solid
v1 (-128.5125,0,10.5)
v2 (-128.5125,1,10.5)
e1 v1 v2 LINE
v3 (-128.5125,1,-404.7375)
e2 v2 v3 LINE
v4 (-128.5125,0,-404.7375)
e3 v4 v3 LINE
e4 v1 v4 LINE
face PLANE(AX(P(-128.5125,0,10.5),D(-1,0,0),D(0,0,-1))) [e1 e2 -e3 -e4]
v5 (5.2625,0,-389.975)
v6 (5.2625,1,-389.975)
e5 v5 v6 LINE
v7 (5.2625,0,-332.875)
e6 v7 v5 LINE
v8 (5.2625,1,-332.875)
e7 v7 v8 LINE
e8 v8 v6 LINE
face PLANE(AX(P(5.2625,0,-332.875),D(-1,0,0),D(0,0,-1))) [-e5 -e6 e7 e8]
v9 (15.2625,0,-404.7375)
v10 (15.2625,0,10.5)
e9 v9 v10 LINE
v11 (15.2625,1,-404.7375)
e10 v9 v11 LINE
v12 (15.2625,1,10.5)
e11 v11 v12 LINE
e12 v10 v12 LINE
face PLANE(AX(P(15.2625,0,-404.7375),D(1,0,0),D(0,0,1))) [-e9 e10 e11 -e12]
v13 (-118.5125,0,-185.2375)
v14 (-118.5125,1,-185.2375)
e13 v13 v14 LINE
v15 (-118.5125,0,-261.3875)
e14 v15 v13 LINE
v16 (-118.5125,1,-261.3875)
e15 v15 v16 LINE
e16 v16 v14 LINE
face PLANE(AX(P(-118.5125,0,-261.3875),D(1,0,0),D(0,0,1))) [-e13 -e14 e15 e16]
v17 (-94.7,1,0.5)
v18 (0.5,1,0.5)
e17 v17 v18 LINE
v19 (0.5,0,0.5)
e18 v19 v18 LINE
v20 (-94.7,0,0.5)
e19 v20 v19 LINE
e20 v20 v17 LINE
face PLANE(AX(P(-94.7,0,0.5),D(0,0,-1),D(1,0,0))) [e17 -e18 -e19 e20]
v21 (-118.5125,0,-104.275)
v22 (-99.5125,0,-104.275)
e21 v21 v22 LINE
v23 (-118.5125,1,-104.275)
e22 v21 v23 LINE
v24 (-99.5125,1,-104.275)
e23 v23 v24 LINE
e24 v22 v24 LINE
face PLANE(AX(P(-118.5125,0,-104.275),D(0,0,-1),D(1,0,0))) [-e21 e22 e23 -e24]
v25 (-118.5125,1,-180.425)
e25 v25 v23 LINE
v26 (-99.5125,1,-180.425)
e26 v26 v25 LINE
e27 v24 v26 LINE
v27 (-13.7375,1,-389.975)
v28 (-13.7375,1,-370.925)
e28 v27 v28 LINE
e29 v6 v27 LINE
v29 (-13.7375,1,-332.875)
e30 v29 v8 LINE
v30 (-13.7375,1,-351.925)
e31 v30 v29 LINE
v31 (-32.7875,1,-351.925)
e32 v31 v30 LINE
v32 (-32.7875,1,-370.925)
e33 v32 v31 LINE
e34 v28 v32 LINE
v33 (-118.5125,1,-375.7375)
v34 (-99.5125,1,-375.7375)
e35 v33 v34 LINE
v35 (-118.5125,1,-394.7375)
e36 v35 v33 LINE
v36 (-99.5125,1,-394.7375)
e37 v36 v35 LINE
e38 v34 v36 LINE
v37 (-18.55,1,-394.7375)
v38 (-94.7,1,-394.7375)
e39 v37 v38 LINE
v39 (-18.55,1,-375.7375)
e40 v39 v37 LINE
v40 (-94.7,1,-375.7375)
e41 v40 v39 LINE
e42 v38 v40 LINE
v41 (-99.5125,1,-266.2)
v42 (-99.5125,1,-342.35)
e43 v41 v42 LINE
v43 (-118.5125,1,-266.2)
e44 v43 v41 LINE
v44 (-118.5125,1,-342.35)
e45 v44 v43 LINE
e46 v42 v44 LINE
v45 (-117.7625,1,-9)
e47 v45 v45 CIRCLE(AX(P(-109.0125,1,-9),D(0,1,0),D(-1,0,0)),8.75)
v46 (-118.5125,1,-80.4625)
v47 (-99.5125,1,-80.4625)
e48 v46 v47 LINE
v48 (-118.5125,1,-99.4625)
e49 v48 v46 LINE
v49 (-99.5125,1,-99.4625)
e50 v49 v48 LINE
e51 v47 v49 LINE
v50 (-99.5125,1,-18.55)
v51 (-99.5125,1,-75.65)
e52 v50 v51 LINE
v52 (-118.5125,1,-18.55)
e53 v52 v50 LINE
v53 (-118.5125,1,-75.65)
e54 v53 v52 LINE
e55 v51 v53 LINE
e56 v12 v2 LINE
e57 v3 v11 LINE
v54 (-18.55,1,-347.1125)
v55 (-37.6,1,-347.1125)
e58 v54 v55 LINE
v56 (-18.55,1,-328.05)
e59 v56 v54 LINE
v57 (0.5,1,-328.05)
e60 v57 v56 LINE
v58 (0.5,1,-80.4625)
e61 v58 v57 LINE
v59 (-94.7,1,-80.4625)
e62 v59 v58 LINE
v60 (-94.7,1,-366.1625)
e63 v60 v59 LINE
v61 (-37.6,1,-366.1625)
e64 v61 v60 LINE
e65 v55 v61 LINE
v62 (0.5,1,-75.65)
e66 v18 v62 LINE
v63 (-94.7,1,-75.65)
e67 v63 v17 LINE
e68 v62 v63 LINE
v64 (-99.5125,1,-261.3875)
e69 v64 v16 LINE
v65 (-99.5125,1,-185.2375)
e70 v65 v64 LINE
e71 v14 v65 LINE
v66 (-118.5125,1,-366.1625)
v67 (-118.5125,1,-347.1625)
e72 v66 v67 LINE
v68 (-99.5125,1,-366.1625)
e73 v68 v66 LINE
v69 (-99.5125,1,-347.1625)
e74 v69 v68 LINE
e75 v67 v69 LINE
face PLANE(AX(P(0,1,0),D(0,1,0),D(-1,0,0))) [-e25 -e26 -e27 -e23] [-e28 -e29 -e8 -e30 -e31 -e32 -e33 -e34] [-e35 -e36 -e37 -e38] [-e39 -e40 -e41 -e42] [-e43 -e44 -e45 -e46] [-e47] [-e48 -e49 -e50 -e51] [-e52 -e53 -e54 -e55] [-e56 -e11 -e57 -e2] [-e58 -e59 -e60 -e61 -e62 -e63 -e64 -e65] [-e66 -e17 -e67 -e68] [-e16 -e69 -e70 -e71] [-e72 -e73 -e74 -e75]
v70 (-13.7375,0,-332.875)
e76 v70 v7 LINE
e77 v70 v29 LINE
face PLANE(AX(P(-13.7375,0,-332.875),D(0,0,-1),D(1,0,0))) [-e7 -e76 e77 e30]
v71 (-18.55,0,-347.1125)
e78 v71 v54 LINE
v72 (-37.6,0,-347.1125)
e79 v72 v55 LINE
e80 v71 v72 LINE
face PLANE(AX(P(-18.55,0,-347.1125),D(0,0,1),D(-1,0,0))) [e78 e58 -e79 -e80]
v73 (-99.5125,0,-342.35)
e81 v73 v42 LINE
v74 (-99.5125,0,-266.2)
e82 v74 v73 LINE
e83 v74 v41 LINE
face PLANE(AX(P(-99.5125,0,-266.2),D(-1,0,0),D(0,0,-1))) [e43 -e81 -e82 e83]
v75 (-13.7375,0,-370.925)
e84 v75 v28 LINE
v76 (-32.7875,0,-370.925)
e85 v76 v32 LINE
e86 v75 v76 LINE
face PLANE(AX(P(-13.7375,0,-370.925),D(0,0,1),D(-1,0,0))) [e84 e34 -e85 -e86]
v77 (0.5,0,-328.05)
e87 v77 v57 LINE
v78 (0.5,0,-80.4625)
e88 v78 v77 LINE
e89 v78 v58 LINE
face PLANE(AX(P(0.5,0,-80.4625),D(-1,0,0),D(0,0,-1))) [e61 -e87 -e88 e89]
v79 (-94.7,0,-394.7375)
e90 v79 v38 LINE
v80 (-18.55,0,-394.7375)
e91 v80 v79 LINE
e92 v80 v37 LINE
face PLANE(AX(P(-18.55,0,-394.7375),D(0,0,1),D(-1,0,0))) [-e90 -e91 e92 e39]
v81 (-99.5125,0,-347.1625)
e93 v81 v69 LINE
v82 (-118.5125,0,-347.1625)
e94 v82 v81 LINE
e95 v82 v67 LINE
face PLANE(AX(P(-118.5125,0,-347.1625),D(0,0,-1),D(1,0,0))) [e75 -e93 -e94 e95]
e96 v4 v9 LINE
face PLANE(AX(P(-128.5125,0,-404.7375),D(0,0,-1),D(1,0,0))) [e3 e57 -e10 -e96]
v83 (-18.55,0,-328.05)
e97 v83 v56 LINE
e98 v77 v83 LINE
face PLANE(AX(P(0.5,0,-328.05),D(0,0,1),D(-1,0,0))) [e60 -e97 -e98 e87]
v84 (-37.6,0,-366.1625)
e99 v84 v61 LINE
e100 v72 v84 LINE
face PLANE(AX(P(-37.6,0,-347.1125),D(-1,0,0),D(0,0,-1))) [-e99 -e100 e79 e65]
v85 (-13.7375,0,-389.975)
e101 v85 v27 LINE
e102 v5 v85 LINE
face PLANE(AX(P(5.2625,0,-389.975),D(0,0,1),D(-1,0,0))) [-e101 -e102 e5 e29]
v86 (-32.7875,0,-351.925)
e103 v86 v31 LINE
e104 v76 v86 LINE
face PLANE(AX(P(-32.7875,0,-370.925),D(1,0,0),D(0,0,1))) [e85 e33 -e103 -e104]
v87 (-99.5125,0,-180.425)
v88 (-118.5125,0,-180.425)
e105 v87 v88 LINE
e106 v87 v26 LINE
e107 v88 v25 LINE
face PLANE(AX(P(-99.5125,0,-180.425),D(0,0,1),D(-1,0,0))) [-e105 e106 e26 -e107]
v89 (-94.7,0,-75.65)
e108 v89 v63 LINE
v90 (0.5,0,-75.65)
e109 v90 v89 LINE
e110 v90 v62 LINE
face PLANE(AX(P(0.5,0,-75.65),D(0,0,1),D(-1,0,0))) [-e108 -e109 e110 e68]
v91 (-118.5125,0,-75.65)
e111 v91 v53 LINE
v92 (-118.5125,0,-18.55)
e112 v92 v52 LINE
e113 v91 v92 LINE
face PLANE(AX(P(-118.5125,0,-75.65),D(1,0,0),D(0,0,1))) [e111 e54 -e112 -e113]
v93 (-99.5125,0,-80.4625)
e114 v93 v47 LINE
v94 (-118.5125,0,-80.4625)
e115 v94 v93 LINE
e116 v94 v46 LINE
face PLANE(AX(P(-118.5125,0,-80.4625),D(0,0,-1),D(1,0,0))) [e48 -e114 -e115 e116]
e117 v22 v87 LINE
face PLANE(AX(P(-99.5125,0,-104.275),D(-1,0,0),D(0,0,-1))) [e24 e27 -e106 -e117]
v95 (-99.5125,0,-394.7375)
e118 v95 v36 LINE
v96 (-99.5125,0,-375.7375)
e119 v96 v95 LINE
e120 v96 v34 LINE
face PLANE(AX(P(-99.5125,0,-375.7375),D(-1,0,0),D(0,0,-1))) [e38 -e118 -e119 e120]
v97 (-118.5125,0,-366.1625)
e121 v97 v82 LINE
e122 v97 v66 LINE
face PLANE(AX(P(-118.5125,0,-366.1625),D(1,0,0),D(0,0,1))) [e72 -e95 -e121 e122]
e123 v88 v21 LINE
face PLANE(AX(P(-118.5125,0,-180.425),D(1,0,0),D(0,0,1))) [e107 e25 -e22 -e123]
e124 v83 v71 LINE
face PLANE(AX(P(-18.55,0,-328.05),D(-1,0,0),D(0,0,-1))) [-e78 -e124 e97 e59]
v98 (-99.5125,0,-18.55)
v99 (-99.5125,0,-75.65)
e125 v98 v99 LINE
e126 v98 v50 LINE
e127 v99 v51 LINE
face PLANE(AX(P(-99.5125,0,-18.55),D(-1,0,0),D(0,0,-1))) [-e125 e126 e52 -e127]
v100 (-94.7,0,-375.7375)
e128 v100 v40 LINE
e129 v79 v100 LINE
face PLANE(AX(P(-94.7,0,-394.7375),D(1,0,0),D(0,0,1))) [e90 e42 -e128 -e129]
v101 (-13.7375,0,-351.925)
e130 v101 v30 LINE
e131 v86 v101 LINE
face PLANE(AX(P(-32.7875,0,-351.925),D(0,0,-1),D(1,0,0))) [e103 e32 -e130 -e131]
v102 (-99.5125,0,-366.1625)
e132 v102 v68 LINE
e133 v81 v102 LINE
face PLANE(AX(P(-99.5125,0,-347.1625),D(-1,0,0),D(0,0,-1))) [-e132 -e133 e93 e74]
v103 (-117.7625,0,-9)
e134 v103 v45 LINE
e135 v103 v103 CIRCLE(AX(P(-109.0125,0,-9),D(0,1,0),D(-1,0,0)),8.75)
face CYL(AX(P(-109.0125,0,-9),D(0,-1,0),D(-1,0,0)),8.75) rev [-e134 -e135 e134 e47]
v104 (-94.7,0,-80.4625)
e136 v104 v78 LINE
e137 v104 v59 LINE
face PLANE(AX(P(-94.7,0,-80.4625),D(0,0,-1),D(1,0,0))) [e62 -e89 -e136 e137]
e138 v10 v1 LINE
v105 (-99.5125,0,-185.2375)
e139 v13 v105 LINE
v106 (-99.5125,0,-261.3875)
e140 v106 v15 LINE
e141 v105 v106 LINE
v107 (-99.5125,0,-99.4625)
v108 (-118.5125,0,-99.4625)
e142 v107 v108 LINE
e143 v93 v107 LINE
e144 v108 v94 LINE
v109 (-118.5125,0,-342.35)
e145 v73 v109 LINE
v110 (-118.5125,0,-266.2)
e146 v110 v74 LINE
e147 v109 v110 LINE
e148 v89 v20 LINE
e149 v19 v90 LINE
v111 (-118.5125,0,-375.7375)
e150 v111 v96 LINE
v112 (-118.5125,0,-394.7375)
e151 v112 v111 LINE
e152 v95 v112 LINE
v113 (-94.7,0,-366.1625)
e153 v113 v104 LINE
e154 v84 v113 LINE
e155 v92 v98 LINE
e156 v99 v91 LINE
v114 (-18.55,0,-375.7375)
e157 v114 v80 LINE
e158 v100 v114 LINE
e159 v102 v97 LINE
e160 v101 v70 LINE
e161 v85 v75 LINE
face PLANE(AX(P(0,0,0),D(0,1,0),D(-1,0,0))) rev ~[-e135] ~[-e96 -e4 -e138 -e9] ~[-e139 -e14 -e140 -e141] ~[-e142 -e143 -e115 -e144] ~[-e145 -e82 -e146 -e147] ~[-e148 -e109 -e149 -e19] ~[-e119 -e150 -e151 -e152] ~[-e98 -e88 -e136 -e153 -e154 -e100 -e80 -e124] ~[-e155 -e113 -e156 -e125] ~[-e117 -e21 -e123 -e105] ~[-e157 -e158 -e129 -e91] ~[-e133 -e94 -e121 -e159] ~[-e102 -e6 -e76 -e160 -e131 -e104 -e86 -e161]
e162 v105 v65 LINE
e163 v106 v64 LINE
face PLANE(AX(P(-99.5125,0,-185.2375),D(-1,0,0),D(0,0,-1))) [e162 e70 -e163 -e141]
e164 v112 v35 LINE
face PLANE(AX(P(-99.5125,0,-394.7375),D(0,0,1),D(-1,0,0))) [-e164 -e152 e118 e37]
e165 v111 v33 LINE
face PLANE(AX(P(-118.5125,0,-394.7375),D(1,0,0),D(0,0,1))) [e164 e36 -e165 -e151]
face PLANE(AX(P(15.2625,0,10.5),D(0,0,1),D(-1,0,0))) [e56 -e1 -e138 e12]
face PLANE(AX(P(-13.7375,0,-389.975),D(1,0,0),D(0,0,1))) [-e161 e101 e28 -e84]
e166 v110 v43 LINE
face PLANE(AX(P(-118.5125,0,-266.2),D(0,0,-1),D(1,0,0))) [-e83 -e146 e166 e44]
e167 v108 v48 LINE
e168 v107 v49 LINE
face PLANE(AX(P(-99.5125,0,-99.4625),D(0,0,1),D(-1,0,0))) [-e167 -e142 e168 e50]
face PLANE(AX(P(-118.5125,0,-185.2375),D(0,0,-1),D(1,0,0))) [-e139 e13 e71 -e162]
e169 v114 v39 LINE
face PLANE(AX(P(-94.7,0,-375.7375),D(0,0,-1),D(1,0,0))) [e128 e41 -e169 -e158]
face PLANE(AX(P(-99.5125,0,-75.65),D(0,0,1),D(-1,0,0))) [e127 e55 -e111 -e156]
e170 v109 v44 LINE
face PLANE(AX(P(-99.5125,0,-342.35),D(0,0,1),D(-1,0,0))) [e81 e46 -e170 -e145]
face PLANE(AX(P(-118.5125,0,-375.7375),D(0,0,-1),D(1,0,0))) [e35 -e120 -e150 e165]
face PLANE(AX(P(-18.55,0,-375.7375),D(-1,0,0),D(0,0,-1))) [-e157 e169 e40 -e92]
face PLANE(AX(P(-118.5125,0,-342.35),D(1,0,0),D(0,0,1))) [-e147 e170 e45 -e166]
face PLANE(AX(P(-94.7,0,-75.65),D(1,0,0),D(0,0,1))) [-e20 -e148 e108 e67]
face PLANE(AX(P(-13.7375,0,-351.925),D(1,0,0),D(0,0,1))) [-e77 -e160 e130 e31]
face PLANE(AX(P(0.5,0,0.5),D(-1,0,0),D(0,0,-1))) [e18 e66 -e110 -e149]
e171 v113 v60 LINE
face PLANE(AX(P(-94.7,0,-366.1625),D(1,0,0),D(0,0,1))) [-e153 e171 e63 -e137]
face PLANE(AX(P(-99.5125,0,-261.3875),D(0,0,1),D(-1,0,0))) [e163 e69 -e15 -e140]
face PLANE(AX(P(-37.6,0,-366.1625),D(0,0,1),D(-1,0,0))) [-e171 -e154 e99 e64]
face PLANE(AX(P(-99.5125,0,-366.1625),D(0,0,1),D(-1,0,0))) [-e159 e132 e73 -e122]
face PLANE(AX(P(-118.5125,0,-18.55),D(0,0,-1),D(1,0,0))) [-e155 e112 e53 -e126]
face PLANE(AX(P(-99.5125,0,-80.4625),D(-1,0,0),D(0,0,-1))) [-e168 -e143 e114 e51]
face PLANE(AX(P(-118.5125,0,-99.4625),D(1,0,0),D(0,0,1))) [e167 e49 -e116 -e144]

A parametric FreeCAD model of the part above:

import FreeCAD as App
import Part
import Sketcher

V = App.Vector
Q = App.Units.Quantity


def add_polygon(sketch, points):
    """Adds a closed chain of lines whose ends are joined by coincident constraints."""
    first, n = sketch.GeometryCount, len(points)
    for a, b in zip(points, points[1:] + points[:1]):
        sketch.addGeometry(Part.LineSegment(App.Vector(*a, 0), App.Vector(*b, 0)), False)
    for i in range(n):
        sketch.addConstraint(Sketcher.Constraint("Coincident", first + i, 2, first + (i + 1) % n, 1))

doc = App.newDocument("Part")
body = doc.addObject("PartDesign::Body", "Body")

sketch1 = body.newObject("Sketcher::SketchObject", "Sketch")
sketch1.AttachmentSupport = (doc.getObject("XZ_Plane"), [""])
sketch1.MapMode = "FlatFace"
add_polygon(sketch1, [(-129, 10), (15, 10), (15, -405), (-129, -405)])
add_polygon(sketch1, [(5, -390), (5, -333), (-14, -333), (-14, -352), (-33, -352), (-33, -371), (-14, -371), (-14, -390)])
add_polygon(sketch1, [(0, -80), (-95, -80), (-95, -366), (-38, -366), (-38, -347), (-19, -347), (-19, -328), (0, -328)])
add_polygon(sketch1, [(-19, -376), (-95, -376), (-95, -395), (-19, -395)])
add_polygon(sketch1, [(-100, -376), (-119, -376), (-119, -395), (-100, -395)])
add_polygon(sketch1, [(-100, -347), (-119, -347), (-119, -366), (-100, -366)])
add_polygon(sketch1, [(-100, -266), (-119, -266), (-119, -342), (-100, -342)])
add_polygon(sketch1, [(-100, -185), (-119, -185), (-119, -261), (-100, -261)])
add_polygon(sketch1, [(0, 0), (-95, 0), (-95, -76), (0, -76)])
add_polygon(sketch1, [(-100, -104), (-119, -104), (-119, -180), (-100, -180)])
add_polygon(sketch1, [(-100, -80), (-119, -80), (-119, -99), (-100, -99)])
add_polygon(sketch1, [(-100, -19), (-119, -19), (-119, -76), (-100, -76)])
sketch1.addGeometry(Part.Circle(V(-109, -9, 0), V(0, 0, 1), 9), False)
sketch1.addConstraint(Sketcher.Constraint("Horizontal", 0))
sketch1.addConstraint(Sketcher.Constraint("Vertical", 1))
sketch1.addConstraint(Sketcher.Constraint("Horizontal", 2))
sketch1.addConstraint(Sketcher.Constraint("Vertical", 3))
sketch1.addConstraint(Sketcher.Constraint("Vertical", 4))
sketch1.addConstraint(Sketcher.Constraint("Horizontal", 5))
sketch1.addConstraint(Sketcher.Constraint("Vertical", 6))
sketch1.addConstraint(Sketcher.Constraint("Horizontal", 7))
sketch1.addConstraint(Sketcher.Constraint("Vertical", 8))
sketch1.addConstraint(Sketcher.Constraint("Horizontal", 9))
sketch1.addConstraint(Sketcher.Constraint("Vertical", 10))
sketch1.addConstraint(Sketcher.Constraint("Horizontal", 11))
sketch1.addConstraint(Sketcher.Constraint("Horizontal", 12))
sketch1.addConstraint(Sketcher.Constraint("Vertical", 13))
sketch1.addConstraint(Sketcher.Constraint("Horizontal", 14))
sketch1.addConstraint(Sketcher.Constraint("Vertical", 15))
sketch1.addConstraint(Sketcher.Constraint("Horizontal", 16))
sketch1.addConstraint(Sketcher.Constraint("Vertical", 17))
sketch1.addConstraint(Sketcher.Constraint("Horizontal", 18))
sketch1.addConstraint(Sketcher.Constraint("Vertical", 19))
sketch1.addConstraint(Sketcher.Constraint("Horizontal", 20))
sketch1.addConstraint(Sketcher.Constraint("Vertical", 21))
sketch1.addConstraint(Sketcher.Constraint("Horizontal", 22))
sketch1.addConstraint(Sketcher.Constraint("Vertical", 23))
sketch1.addConstraint(Sketcher.Constraint("Horizontal", 24))
sketch1.addConstraint(Sketcher.Constraint("Vertical", 25))
sketch1.addConstraint(Sketcher.Constraint("Horizontal", 26))
sketch1.addConstraint(Sketcher.Constraint("Vertical", 27))
sketch1.addConstraint(Sketcher.Constraint("Horizontal", 28))
sketch1.addConstraint(Sketcher.Constraint("Vertical", 29))
sketch1.addConstraint(Sketcher.Constraint("Horizontal", 30))
sketch1.addConstraint(Sketcher.Constraint("Vertical", 31))
sketch1.addConstraint(Sketcher.Constraint("Horizontal", 32))
sketch1.addConstraint(Sketcher.Constraint("Vertical", 33))
sketch1.addConstraint(Sketcher.Constraint("Horizontal", 34))
sketch1.addConstraint(Sketcher.Constraint("Vertical", 35))
sketch1.addConstraint(Sketcher.Constraint("Horizontal", 36))
sketch1.addConstraint(Sketcher.Constraint("Vertical", 37))
sketch1.addConstraint(Sketcher.Constraint("Horizontal", 38))
sketch1.addConstraint(Sketcher.Constraint("Vertical", 39))
sketch1.addConstraint(Sketcher.Constraint("Horizontal", 40))
sketch1.addConstraint(Sketcher.Constraint("Vertical", 41))
sketch1.addConstraint(Sketcher.Constraint("Horizontal", 42))
sketch1.addConstraint(Sketcher.Constraint("Vertical", 43))
sketch1.addConstraint(Sketcher.Constraint("Horizontal", 44))
sketch1.addConstraint(Sketcher.Constraint("Vertical", 45))
sketch1.addConstraint(Sketcher.Constraint("Horizontal", 46))
sketch1.addConstraint(Sketcher.Constraint("Vertical", 47))
sketch1.addConstraint(Sketcher.Constraint("Horizontal", 48))
sketch1.addConstraint(Sketcher.Constraint("Vertical", 49))
sketch1.addConstraint(Sketcher.Constraint("Horizontal", 50))
sketch1.addConstraint(Sketcher.Constraint("Vertical", 51))
sketch1.addConstraint(Sketcher.Constraint("Horizontal", 52))
sketch1.addConstraint(Sketcher.Constraint("Vertical", 53))
sketch1.addConstraint(Sketcher.Constraint("Horizontal", 54))
sketch1.addConstraint(Sketcher.Constraint("Vertical", 55))
sketch1.addConstraint(Sketcher.Constraint("Horizontal", 23, 2, 24, 2))
sketch1.addConstraint(Sketcher.Constraint("Horizontal", 22, 2, 25, 2))
sketch1.addConstraint(Sketcher.Constraint("Horizontal", 14, 2, 29, 2))
sketch1.addConstraint(Sketcher.Constraint("Horizontal", 19, 2, 48, 2))
sketch1.addConstraint(Sketcher.Constraint("Horizontal", 42, 2, 53, 2))
sketch1.addConstraint(Sketcher.Constraint("Vertical", 6, 2, 9, 2))
sketch1.addConstraint(Sketcher.Constraint("Vertical", 13, 2, 20, 2))
sketch1.addConstraint(Sketcher.Constraint("Vertical", 17, 2, 22, 2))
sketch1.addConstraint(Sketcher.Constraint("Vertical", 25, 2, 28, 2))
sketch1.addConstraint(Sketcher.Constraint("Vertical", 27, 2, 30, 2))
sketch1.addConstraint(Sketcher.Constraint("Vertical", 29, 2, 32, 2))
sketch1.addConstraint(Sketcher.Constraint("Vertical", 31, 2, 34, 2))
sketch1.addConstraint(Sketcher.Constraint("Vertical", 33, 2, 36, 2))
sketch1.addConstraint(Sketcher.Constraint("Vertical", 35, 2, 38, 2))
sketch1.addConstraint(Sketcher.Constraint("Vertical", 21, 2, 40, 2))
sketch1.addConstraint(Sketcher.Constraint("Vertical", 19, 2, 42, 2))
sketch1.addConstraint(Sketcher.Constraint("Vertical", 37, 2, 44, 2))
sketch1.addConstraint(Sketcher.Constraint("Vertical", 39, 2, 46, 2))
sketch1.addConstraint(Sketcher.Constraint("Vertical", 45, 2, 48, 2))
sketch1.addConstraint(Sketcher.Constraint("Vertical", 47, 2, 50, 2))
sketch1.addConstraint(Sketcher.Constraint("Vertical", 49, 2, 52, 2))
sketch1.addConstraint(Sketcher.Constraint("Vertical", 51, 2, 54, 2))
sketch1.addConstraint(Sketcher.Constraint("Equal", 9, 16))
sketch1.addConstraint(Sketcher.Constraint("Equal", 16, 18))
sketch1.addConstraint(Sketcher.Constraint("Equal", 11, 24))
sketch1.addConstraint(Sketcher.Constraint("Equal", 14, 4))
sketch1.addConstraint(Sketcher.Constraint("Equal", 18, 6))
sketch1.addConstraint(Sketcher.Constraint("Equal", 54, 8))
sketch1.addConstraint(Sketcher.Constraint("Equal", 6, 10))
sketch1.addConstraint(Sketcher.Constraint("Equal", 10, 15))
sketch1.addConstraint(Sketcher.Constraint("Equal", 8, 21))
sketch1.addConstraint(Sketcher.Constraint("Equal", 27, 29))
sketch1.addConstraint(Sketcher.Constraint("Equal", 22, 33))
sketch1.addConstraint(Sketcher.Constraint("Equal", 35, 37))
sketch1.addConstraint(Sketcher.Constraint("Equal", 39, 41))
sketch1.addConstraint(Sketcher.Constraint("Equal", 43, 45))
sketch1.addConstraint(Sketcher.Constraint("Equal", 31, 49))
sketch1.addConstraint(Sketcher.Constraint("Equal", 4, 53))
sketch1.addConstraint(Sketcher.Constraint("Diameter", 56, Q("17.5 mm")))
sketch1.addConstraint(Sketcher.Constraint("DistanceX", 5, 2, 5, 1, Q("19 mm")))
sketch1.addConstraint(Sketcher.Constraint("DistanceX", 12, 2, 12, 1, Q("95.2 mm")))
sketch1.addConstraint(Sketcher.Constraint("DistanceY", 13, 2, 13, 1, Q("285.7 mm")))
sketch1.addConstraint(Sketcher.Constraint("DistanceY", 56, 3, -1, 1, Q("9 mm")))
sketch1.addConstraint(Sketcher.Constraint("DistanceX", 4, 2, 1, 2, Q("10 mm")))
sketch1.addConstraint(Sketcher.Constraint("DistanceY", 2, 2, 20, 2, Q("29 mm")))
sketch1.addConstraint(Sketcher.Constraint("DistanceX", 2, 2, 24, 2, Q("10 mm")))
sketch1.addConstraint(Sketcher.Constraint("DistanceY", 40, 2, 3, 2, Q("10 mm")))
sketch1.addConstraint(Sketcher.Constraint("DistanceY", -1, 1, 0, 2, Q("10.5 mm")))
sketch1.addConstraint(Sketcher.Constraint("DistanceX", 12, 2, -1, 1, Q("94.7 mm")))
sketch1.addConstraint(Sketcher.Constraint("DistanceY", 32, 2, -1, 1, Q("266.2 mm")))
sketch1.addConstraint(Sketcher.Constraint("DistanceX", 2, 2, 56, 3, Q("19.5 mm")))
sketch1.addConstraint(Sketcher.Constraint("DistanceX", 0, 1, 0, 2, Q("143.775 mm")))
sketch1.addConstraint(Sketcher.Constraint("DistanceY", 17, 2, -1, 1, Q("328.05 mm")))
sketch1.addConstraint(Sketcher.Constraint("DistanceY", 1, 2, 1, 1, Q("415.2375 mm")))
sketch1.addConstraint(Sketcher.Constraint("DistanceY", 17, 1, 17, 2, Q("19.0625 mm")))
sketch1.addConstraint(Sketcher.Constraint("DistanceY", 4, 2, -1, 1, Q("332.875 mm")))
sketch1.addConstraint(Sketcher.Constraint("DistanceY", 44, 2, -1, 1, Q("104.275 mm")))
sketch1.addConstraint(Sketcher.Constraint("DistanceY", 36, 2, 12, 2, Q("104.775 mm")))
sketch1.addConstraint(Sketcher.Constraint("DistanceX", 56, 3, -1, 1, Q("109.0125 mm")))
pad1 = body.newObject("PartDesign::Pad", "Pad")
pad1.Profile = sketch1
pad1.Length = 1
pad1.Reversed = True

doc.recompute()
